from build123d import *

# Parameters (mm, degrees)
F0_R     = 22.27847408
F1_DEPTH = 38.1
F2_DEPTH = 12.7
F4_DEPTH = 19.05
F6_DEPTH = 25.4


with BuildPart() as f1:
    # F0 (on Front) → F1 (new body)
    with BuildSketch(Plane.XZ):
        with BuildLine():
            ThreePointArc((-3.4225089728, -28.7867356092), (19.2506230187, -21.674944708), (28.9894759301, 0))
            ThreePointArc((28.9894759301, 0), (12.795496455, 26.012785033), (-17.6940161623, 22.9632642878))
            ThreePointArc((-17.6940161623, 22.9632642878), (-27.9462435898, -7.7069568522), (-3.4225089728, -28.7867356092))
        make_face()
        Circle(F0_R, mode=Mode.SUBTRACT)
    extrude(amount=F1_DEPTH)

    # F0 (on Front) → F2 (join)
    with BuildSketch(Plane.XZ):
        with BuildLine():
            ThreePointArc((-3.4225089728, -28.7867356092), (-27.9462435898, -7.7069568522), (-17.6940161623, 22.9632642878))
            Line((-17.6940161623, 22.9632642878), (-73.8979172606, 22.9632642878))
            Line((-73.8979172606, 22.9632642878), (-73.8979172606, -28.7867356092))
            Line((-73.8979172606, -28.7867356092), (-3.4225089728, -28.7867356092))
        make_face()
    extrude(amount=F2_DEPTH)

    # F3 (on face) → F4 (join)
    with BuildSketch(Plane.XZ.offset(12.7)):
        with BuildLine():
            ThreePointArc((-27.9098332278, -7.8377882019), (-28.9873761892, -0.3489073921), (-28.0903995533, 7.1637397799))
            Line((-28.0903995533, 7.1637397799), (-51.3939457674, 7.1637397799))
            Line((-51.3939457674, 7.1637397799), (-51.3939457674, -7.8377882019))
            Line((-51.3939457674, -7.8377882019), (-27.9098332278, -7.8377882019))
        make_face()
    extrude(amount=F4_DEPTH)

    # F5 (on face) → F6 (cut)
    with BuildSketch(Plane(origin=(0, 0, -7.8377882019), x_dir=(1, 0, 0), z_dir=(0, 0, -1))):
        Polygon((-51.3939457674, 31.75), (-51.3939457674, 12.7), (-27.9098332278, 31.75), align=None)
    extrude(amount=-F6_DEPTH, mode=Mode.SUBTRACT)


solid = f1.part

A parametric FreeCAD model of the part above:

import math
import FreeCAD as App
import Part
import Sketcher
Q = App.Units.Quantity

doc = App.newDocument("Part")
params = doc.addObject("Spreadsheet::Sheet", "Params")
for row, (alias, value) in enumerate([
    ("pad1_length", "1.5 in"),
    ("pad2_length", "0.5 in"),
    ("pad3_length", "0.75 in"),
    ("sketch4_height", "0.75 in"),
    ("pocket1_length", "1 in"),
], start=1):
    params.set(f"A{row}", alias)
    params.set(f"B{row}", "=" + value)
    params.setAlias(f"B{row}", alias)

body = doc.addObject("PartDesign::Body", "Body")

# Sketch on XZ plane
sketch1 = body.newObject("Sketcher::SketchObject", "Sketch")
sketch1.AttachmentSupport = (doc.getObject("XZ_Plane"), [""])
sketch1.MapMode = "FlatFace"
sketch1.addGeometry([
    Part.Circle(App.Vector(0, 0, 0), App.Vector(0, 0, 1), 29),
    Part.Circle(App.Vector(0, 0, 0), App.Vector(0, 0, 1), 22),
], False)
sketch1.addConstraint([
    Sketcher.Constraint("Coincident", 0, 3, -1, 1),
    Sketcher.Constraint("Coincident", 1, 3, -1, 1),
    Sketcher.Constraint("Diameter", 0, 57.978952),
    Sketcher.Constraint("Diameter", 1, 44.556948),
])
pad1 = body.newObject("PartDesign::Pad", "Pad")
pad1.Profile = sketch1
pad1.setExpression("Length", "Params.pad1_length")

# Sketch on XZ plane
sketch2 = body.newObject("Sketcher::SketchObject", "Sketch001")
sketch2.AttachmentSupport = (doc.getObject("XZ_Plane"), [""])
sketch2.MapMode = "FlatFace"
sketch2.addGeometry([
    Part.ArcOfCircle(Part.Circle(App.Vector(0, 0, 0), App.Vector(0, 0, 1), 29), math.radians(128), math.radians(263)),
    Part.LineSegment(App.Vector(-18, 23, 0), App.Vector(-74, 23, 0)),
    Part.LineSegment(App.Vector(-74, 23, 0), App.Vector(-74, -29, 0)),
    Part.LineSegment(App.Vector(-74, -29, 0), App.Vector(-3, -29, 0)),
], False)
sketch2.addConstraint([
    Sketcher.Constraint("Coincident", 0, 1, 1, 1),
    Sketcher.Constraint("Coincident", 1, 2, 2, 1),
    Sketcher.Constraint("Coincident", 2, 2, 3, 1),
    Sketcher.Constraint("Coincident", 3, 2, 0, 2),
    Sketcher.Constraint("Horizontal", 1),
    Sketcher.Constraint("Vertical", 2),
    Sketcher.Constraint("Horizontal", 3),
    Sketcher.Constraint("Coincident", 0, 3, -1, 1),
    Sketcher.Constraint("DistanceX", 1, 2, 1, 1, 56.203901),
    Sketcher.Constraint("DistanceY", 2, 2, 2, 1, 51.75),
    Sketcher.Constraint("Radius", 0, 28.989476),
    Sketcher.Constraint("DistanceX", 3, 1, 3, 2, 70.475408),
])
pad2 = body.newObject("PartDesign::Pad", "Pad001")
pad2.Profile = sketch2
pad2.setExpression("Length", "Params.pad2_length")

# Sketch on XZ plane
sketch3 = body.newObject("Sketcher::SketchObject", "Sketch002")
sketch3.AttachmentSupport = (doc.getObject("XZ_Plane"), [""])
sketch3.MapMode = "FlatFace"
sketch3.AttachmentOffset = App.Placement(App.Vector(0, 0, 0.5 * 25.4), App.Rotation())
sketch3.addGeometry([
    Part.ArcOfCircle(Part.Circle(App.Vector(0, 0, 0), App.Vector(0, 0, 1), 29), math.radians(166), math.radians(196)),
    Part.LineSegment(App.Vector(-28, 7, 0), App.Vector(-51, 7, 0)),
    Part.LineSegment(App.Vector(-51, 7, 0), App.Vector(-51, -8, 0)),
    Part.LineSegment(App.Vector(-51, -8, 0), App.Vector(-28, -8, 0)),
], False)
sketch3.addConstraint([
    Sketcher.Constraint("Coincident", 0, 1, 1, 1),
    Sketcher.Constraint("Coincident", 1, 2, 2, 1),
    Sketcher.Constraint("Coincident", 2, 2, 3, 1),
    Sketcher.Constraint("Coincident", 3, 2, 0, 2),
    Sketcher.Constraint("Horizontal", 1),
    Sketcher.Constraint("Vertical", 2),
    Sketcher.Constraint("Horizontal", 3),
    Sketcher.Constraint("Coincident", 0, 3, -1, 1),
    Sketcher.Constraint("Radius", 0, 28.989476),
    Sketcher.Constraint("DistanceX", 0, 1, -1, 1, 28.0904),
    Sketcher.Constraint("DistanceX", 1, 2, 1, 1, 23.303546),
    Sketcher.Constraint("DistanceX", 3, 1, 3, 2, 23.484113),
])
pad3 = body.newObject("PartDesign::Pad", "Pad002")
pad3.Profile = sketch3
pad3.setExpression("Length", "Params.pad3_length")

# Sketch on XY plane
sketch4 = body.newObject("Sketcher::SketchObject", "Sketch003")
sketch4.AttachmentSupport = (doc.getObject("XY_Plane"), [""])
sketch4.MapMode = "FlatFace"
sketch4.AttachmentOffset = App.Placement(App.Vector(0, 0, -7.837788), App.Rotation())
sketch4.addGeometry([
    Part.LineSegment(App.Vector(-51, -32, 0), App.Vector(-51, -13, 0)),
    Part.LineSegment(App.Vector(-51, -13, 0), App.Vector(-28, -32, 0)),
    Part.LineSegment(App.Vector(-28, -32, 0), App.Vector(-51, -32, 0)),
], False)
sketch4.addConstraint([
    Sketcher.Constraint("Coincident", 0, 2, 1, 1),
    Sketcher.Constraint("Coincident", 1, 2, 2, 1),
    Sketcher.Constraint("Coincident", 2, 2, 0, 1),
    Sketcher.Constraint("Vertical", 0),
    Sketcher.Constraint("Horizontal", 2),
    Sketcher.Constraint("DistanceY", 0, 1, 0, 2, Q("0.75 in")),
    Sketcher.Constraint("DistanceY", 0, 2, -1, 1, Q("0.5 in")),
    Sketcher.Constraint("DistanceX", 2, 2, 2, 1, 23.484113),
    Sketcher.Constraint("DistanceX", 0, 2, -1, 1, 51.393946),
])
sketch4.setExpression("Constraints[5]", "Params.sketch4_height")
pocket1 = body.newObject("PartDesign::Pocket", "Pocket")
pocket1.Profile = sketch4
pocket1.setExpression("Length", "Params.pocket1_length")
pocket1.Reversed = True

doc.recompute()
